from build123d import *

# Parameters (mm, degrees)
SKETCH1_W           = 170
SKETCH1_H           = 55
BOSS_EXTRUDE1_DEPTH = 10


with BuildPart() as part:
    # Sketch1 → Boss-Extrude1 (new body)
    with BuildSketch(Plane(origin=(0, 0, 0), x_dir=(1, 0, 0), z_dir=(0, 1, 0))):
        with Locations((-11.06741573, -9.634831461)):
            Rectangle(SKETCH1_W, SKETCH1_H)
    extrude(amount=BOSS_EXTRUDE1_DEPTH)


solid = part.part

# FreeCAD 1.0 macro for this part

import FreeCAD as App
import Part
import Sketcher

V = App.Vector

doc = App.newDocument("Part")
body = doc.addObject("PartDesign::Body", "Body")

# Sketch on XZ plane
sketch1 = body.newObject("Sketcher::SketchObject", "Sketch")
sketch1.AttachmentSupport = (doc.getObject("XZ_Plane"), [""])
sketch1.MapMode = "FlatFace"
sketch1.addGeometry([
    Part.LineSegment(V(-96, -18, 0), V(-96, 37, 0)),
    Part.LineSegment(V(-96, 37, 0), V(74, 37, 0)),
    Part.LineSegment(V(74, 37, 0), V(74, -18, 0)),
    Part.LineSegment(V(74, -18, 0), V(-96, -18, 0)),
], False)
sketch1.addConstraint([
    Sketcher.Constraint("Coincident", 0, 2, 1, 1),
    Sketcher.Constraint("Coincident", 1, 2, 2, 1),
    Sketcher.Constraint("Coincident", 2, 2, 3, 1),
    Sketcher.Constraint("Coincident", 3, 2, 0, 1),
    Sketcher.Constraint("Vertical", 0),
    Sketcher.Constraint("Horizontal", 1),
    Sketcher.Constraint("Vertical", 2),
    Sketcher.Constraint("Horizontal", 3),
    Sketcher.Constraint("DistanceX", 1, 1, 1, 2, 170.0),
    Sketcher.Constraint("DistanceY", 0, 1, 0, 2, 55.0),
    Sketcher.Constraint("DistanceY", -1, 1, 0, 2, 37.134831),
    Sketcher.Constraint("DistanceX", 0, 2, -1, 1, 96.067416),
])
pad1 = body.newObject("PartDesign::Pad", "Pad")
pad1.Profile = sketch1
pad1.Length = 10
pad1.Reversed = True

doc.recompute()
